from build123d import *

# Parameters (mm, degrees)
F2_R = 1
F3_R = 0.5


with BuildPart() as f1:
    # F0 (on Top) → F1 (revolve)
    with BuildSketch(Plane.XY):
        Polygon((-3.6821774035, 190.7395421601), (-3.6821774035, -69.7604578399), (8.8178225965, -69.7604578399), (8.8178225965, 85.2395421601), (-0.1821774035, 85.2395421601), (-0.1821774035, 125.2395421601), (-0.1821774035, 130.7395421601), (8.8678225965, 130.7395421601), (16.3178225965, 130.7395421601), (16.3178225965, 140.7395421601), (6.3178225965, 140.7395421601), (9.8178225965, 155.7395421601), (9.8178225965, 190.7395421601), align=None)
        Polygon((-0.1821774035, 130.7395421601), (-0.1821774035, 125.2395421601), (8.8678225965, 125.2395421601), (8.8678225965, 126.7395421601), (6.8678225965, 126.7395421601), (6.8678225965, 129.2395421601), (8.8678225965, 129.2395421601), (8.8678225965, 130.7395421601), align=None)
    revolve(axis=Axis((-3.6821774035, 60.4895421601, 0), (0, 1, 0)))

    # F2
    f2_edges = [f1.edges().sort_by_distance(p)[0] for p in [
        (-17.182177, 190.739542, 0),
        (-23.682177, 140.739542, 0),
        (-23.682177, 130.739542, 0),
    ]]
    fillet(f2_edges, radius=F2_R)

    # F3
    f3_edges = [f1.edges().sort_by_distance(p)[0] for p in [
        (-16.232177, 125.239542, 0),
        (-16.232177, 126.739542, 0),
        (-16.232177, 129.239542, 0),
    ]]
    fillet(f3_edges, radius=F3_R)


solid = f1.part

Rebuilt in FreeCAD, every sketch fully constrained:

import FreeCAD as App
import Part
import Sketcher
from FreeCAD import Vector


def edges_at(feature, points):
    """Names of the edges that pass closest to the given points."""
    edges = feature.Shape.Edges
    near = lambda p: min(range(len(edges)), key=lambda i: edges[i].distToShape(Part.Vertex(*p))[0])
    return sorted({f"Edge{near(p) + 1}" for p in points})


def add_polygon(sketch, points):
    """Adds a closed chain of lines whose ends are joined by coincident constraints."""
    first, n = sketch.GeometryCount, len(points)
    for a, b in zip(points, points[1:] + points[:1]):
        sketch.addGeometry(Part.LineSegment(App.Vector(*a, 0), App.Vector(*b, 0)), False)
    for i in range(n):
        sketch.addConstraint(Sketcher.Constraint("Coincident", first + i, 2, first + (i + 1) % n, 1))

doc = App.newDocument("Part")
params = doc.addObject("Spreadsheet::Sheet", "Params")
for row, (alias, value) in enumerate([
    ("sketch1_width", "9 mm"),
    ("sketch1_width2", "2 mm"),
    ("sketch1_width3", "10 mm"),
    ("sketch1_height", "155 mm"),
    ("sketch1_height2", "40 mm"),
    ("revolution_angle", "360 deg"),
    ("fillet_radius", "1 mm"),
    ("fillet2_radius", "0.5 mm"),
], start=1):
    params.set(f"A{row}", alias)
    params.set(f"B{row}", "=" + value)
    params.setAlias(f"B{row}", alias)

body = doc.addObject("PartDesign::Body", "Body")

# Sketch on XY plane
sketch1 = body.newObject("Sketcher::SketchObject", "Sketch")
sketch1.AttachmentSupport = (doc.getObject("XY_Plane"), [""])
sketch1.MapMode = "FlatFace"
add_polygon(sketch1, [(-3.7, 190.7), (-3.7, -69.8), (8.8, -69.8), (8.8, 85.2), (-0.2, 85.2), (-0.2, 125.2), (8.9, 125.2), (8.9, 126.7), (6.9, 126.7), (6.9, 129.2), (8.9, 129.2), (8.9, 130.7), (16.3, 130.7), (16.3, 140.7), (6.3, 140.7), (9.8, 155.7), (9.8, 190.7)])  # lines 0-16
sketch1.addGeometry(Part.LineSegment(Vector(-3.7, -69.8, 0), Vector(-3.7, 190.7, 0)), True)  # axis
sketch1.addConstraint(Sketcher.Constraint("Vertical", 0))
sketch1.addConstraint(Sketcher.Constraint("Horizontal", 1))
sketch1.addConstraint(Sketcher.Constraint("Vertical", 2))
sketch1.addConstraint(Sketcher.Constraint("Horizontal", 3))
sketch1.addConstraint(Sketcher.Constraint("Vertical", 4))
sketch1.addConstraint(Sketcher.Constraint("Horizontal", 5))
sketch1.addConstraint(Sketcher.Constraint("Vertical", 6))
sketch1.addConstraint(Sketcher.Constraint("Horizontal", 7))
sketch1.addConstraint(Sketcher.Constraint("Vertical", 8))
sketch1.addConstraint(Sketcher.Constraint("Horizontal", 9))
sketch1.addConstraint(Sketcher.Constraint("Vertical", 10))
sketch1.addConstraint(Sketcher.Constraint("Horizontal", 11))
sketch1.addConstraint(Sketcher.Constraint("Vertical", 12))
sketch1.addConstraint(Sketcher.Constraint("Horizontal", 13))
sketch1.addConstraint(Sketcher.Constraint("Vertical", 15))
sketch1.addConstraint(Sketcher.Constraint("Horizontal", 16))
sketch1.addConstraint(Sketcher.Constraint("Vertical", 17))
sketch1.addConstraint(Sketcher.Constraint("Coincident", 17, 1, 0, 2))
sketch1.addConstraint(Sketcher.Constraint("Horizontal", 15, 2, 17, 2))
sketch1.addConstraint(Sketcher.Constraint("Vertical", 6, 2, 9, 2))
sketch1.addConstraint(Sketcher.Constraint("Equal", 6, 10))
sketch1.addConstraint(Sketcher.Constraint("Equal", 13, 12))
sketch1.addConstraint(Sketcher.Constraint("DistanceX", 3, 2, 3, 1, 9.0))
sketch1.addConstraint(Sketcher.Constraint("DistanceX", 7, 2, 7, 1, 2.0))
sketch1.addConstraint(Sketcher.Constraint("DistanceX", 13, 2, 13, 1, 10.0))
sketch1.addConstraint(Sketcher.Constraint("DistanceY", 2, 1, 2, 2, 155.0))
sketch1.addConstraint(Sketcher.Constraint("DistanceY", 4, 1, 4, 2, 40.0))
sketch1.addConstraint(Sketcher.Constraint("DistanceY", 15, 1, 15, 2, 35.0))
sketch1.addConstraint(Sketcher.Constraint("DistanceX", 1, 1, 1, 2, 12.5))
sketch1.addConstraint(Sketcher.Constraint("DistanceX", 16, 2, 16, 1, 13.5))
sketch1.addConstraint(Sketcher.Constraint("DistanceY", 0, 2, 0, 1, 260.5))
sketch1.addConstraint(Sketcher.Constraint("DistanceY", 6, 1, 6, 2, 1.5))
sketch1.addConstraint(Sketcher.Constraint("DistanceY", 8, 1, 8, 2, 2.5))
sketch1.addConstraint(Sketcher.Constraint("DistanceX", 16, 2, 13, 2, 10.0))
sketch1.addConstraint(Sketcher.Constraint("DistanceX", 5, 1, 5, 2, 9.05))
sketch1.addConstraint(Sketcher.Constraint("DistanceX", 0, 2, -1, 1, 3.682177))
sketch1.addConstraint(Sketcher.Constraint("DistanceY", 0, 2, -1, 1, 69.760458))
sketch1.setExpression("Constraints[39]", "Params.sketch1_width")
sketch1.setExpression("Constraints[40]", "Params.sketch1_width2")
sketch1.setExpression("Constraints[41]", "Params.sketch1_width3")
sketch1.setExpression("Constraints[42]", "Params.sketch1_height")
sketch1.setExpression("Constraints[43]", "Params.sketch1_height2")
revolution = body.newObject("PartDesign::Revolution", "Revolution")
revolution.Profile = sketch1
revolution.ReferenceAxis = (sketch1, ["Axis0"])
revolution.setExpression("Angle", "Params.revolution_angle")
doc.recompute()

fillet = body.newObject("PartDesign::Fillet", "Fillet")
fillet.Base = (revolution, edges_at(revolution, [(-17.182, 190.74, 0), (-23.682, 140.74, 0), (-23.682, 130.74, 0)]))
fillet.setExpression("Radius", "Params.fillet_radius")
doc.recompute()

fillet2 = body.newObject("PartDesign::Fillet", "Fillet001")
fillet2.Base = (fillet, edges_at(fillet, [(-16.232, 125.24, 0), (-16.232, 126.74, 0), (-16.232, 129.24, 0)]))
fillet2.setExpression("Radius", "Params.fillet2_radius")

doc.recompute()
